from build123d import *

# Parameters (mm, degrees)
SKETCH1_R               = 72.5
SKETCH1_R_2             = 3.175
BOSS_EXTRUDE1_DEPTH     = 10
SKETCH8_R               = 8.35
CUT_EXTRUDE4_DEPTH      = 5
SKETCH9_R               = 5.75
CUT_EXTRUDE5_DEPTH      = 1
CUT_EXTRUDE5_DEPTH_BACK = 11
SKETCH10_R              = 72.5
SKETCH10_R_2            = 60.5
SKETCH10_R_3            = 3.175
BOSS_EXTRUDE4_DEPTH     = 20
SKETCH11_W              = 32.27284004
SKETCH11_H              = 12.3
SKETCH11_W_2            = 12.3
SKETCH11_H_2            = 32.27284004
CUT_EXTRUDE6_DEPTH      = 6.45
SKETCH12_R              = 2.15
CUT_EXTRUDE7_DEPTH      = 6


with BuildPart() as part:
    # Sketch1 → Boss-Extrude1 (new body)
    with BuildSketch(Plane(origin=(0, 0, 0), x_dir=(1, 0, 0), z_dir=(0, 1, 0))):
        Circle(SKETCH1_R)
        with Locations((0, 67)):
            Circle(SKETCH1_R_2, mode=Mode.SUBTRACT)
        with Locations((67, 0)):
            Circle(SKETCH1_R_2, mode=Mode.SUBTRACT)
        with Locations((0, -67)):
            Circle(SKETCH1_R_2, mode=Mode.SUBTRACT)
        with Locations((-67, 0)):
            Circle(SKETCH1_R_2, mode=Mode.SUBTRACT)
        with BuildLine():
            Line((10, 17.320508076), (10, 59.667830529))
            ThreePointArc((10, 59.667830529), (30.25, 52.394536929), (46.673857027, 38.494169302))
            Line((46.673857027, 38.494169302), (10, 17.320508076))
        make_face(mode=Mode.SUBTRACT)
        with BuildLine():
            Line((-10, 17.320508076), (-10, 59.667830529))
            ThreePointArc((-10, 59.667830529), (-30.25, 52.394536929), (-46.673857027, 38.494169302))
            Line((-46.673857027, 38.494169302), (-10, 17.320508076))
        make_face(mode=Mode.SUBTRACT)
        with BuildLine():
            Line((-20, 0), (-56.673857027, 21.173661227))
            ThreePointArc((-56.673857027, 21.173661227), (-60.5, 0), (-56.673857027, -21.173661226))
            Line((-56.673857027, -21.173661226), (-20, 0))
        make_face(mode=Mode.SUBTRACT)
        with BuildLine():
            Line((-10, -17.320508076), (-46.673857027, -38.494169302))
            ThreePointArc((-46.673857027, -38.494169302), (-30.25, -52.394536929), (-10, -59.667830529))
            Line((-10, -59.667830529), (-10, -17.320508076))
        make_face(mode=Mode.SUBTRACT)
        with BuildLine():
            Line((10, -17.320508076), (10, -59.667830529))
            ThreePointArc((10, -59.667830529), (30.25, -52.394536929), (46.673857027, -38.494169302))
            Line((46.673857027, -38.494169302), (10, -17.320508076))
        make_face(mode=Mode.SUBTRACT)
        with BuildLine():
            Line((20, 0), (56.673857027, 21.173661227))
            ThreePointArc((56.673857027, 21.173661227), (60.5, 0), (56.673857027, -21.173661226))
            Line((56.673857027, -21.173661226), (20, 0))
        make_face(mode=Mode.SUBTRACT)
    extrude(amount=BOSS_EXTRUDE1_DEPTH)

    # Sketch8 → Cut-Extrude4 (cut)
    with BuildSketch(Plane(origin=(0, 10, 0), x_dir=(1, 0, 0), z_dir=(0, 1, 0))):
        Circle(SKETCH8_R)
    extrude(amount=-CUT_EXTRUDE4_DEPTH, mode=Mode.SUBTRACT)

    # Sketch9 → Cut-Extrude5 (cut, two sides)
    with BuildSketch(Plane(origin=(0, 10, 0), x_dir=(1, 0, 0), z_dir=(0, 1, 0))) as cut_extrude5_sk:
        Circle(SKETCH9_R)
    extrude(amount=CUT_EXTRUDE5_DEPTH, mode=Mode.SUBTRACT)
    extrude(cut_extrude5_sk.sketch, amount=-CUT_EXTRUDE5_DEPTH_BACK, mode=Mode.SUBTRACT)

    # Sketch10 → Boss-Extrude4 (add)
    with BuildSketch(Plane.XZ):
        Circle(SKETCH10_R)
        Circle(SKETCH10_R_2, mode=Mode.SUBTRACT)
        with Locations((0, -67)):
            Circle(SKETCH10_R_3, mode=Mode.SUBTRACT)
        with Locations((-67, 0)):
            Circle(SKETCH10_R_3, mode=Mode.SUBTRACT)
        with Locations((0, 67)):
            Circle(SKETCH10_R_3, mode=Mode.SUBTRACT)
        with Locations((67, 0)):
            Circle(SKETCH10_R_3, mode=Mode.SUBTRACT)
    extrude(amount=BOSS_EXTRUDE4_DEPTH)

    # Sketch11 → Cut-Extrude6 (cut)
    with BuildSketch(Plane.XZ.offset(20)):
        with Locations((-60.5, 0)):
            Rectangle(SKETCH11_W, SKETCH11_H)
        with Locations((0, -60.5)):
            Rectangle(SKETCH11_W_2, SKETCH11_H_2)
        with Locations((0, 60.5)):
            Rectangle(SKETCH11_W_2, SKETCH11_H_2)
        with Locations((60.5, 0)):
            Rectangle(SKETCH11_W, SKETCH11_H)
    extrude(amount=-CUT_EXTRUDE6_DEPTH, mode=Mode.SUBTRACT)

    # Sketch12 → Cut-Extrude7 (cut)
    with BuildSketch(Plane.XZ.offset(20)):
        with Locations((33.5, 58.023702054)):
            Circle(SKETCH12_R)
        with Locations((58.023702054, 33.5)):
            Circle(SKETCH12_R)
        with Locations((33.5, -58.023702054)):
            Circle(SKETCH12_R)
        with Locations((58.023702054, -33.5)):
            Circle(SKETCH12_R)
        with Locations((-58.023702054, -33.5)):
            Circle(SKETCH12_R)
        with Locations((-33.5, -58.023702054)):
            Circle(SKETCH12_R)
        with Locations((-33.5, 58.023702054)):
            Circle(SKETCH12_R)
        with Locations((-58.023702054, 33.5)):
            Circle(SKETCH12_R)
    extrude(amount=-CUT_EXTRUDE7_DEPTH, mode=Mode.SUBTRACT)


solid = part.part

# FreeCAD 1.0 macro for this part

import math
import FreeCAD as App
import Part
import Sketcher
Q = App.Units.Quantity


def add_polygon(sketch, points):
    """Adds a closed chain of lines whose ends are joined by coincident constraints."""
    first, n = sketch.GeometryCount, len(points)
    for a, b in zip(points, points[1:] + points[:1]):
        sketch.addGeometry(Part.LineSegment(App.Vector(*a, 0), App.Vector(*b, 0)), False)
    for i in range(n):
        sketch.addConstraint(Sketcher.Constraint("Coincident", first + i, 2, first + (i + 1) % n, 1))

doc = App.newDocument("Part")
body = doc.addObject("PartDesign::Body", "Body")

# Sketch on XZ plane
sketch1 = doc.addObject("Sketcher::SketchObject", "Sketch")
body.addObject(sketch1)
sketch1.AttachmentSupport = (doc.XZ_Plane, [""])
sketch1.MapMode = "FlatFace"
sketch1.addGeometry([
    Part.Circle(App.Vector(0, 0, 0), App.Vector(0, 0, 1), 72.5),  # 0
    Part.LineSegment(App.Vector(-46.7, 38.5, 0), App.Vector(-10, 17.3, 0)),  # 1
    Part.LineSegment(App.Vector(-10, 17.3, 0), App.Vector(-10, 59.7, 0)),  # 2
    Part.ArcOfCircle(Part.Circle(App.Vector(0, 0, 0), App.Vector(0, 0, 1), 60.5), math.radians(100), math.radians(140)),  # 3
    Part.Circle(App.Vector(0, 67, 0), App.Vector(0, 0, 1), 3.2),  # 4
    Part.LineSegment(App.Vector(10, 59.7, 0), App.Vector(10, 17.3, 0)),  # 5
    Part.LineSegment(App.Vector(10, 17.3, 0), App.Vector(46.7, 38.5, 0)),  # 6
    Part.ArcOfCircle(Part.Circle(App.Vector(0, 0, 0), App.Vector(0, 0, 1), 60.5), math.radians(40), math.radians(80)),  # 7
    Part.Circle(App.Vector(-67, 0, 0), App.Vector(0, 0, 1), 3.2),  # 8
    Part.LineSegment(App.Vector(-56.7, -21.2, 0), App.Vector(-20, 0, 0)),  # 9
    Part.LineSegment(App.Vector(-20, 0, 0), App.Vector(-56.7, 21.2, 0)),  # 10
    Part.ArcOfCircle(Part.Circle(App.Vector(0, 0, 0), App.Vector(0, 0, 1), 60.5), math.radians(160), math.radians(200)),  # 11
    Part.LineSegment(App.Vector(-10, -59.7, 0), App.Vector(-10, -17.3, 0)),  # 12
    Part.LineSegment(App.Vector(-10, -17.3, 0), App.Vector(-46.7, -38.5, 0)),  # 13
    Part.ArcOfCircle(Part.Circle(App.Vector(0, 0, 0), App.Vector(0, 0, 1), 60.5), math.radians(-140), math.radians(-100)),  # 14
    Part.LineSegment(App.Vector(56.7, 21.2, 0), App.Vector(20, 0, 0)),  # 15
    Part.LineSegment(App.Vector(20, 0, 0), App.Vector(56.7, -21.2, 0)),  # 16
    Part.ArcOfCircle(Part.Circle(App.Vector(0, 0, 0), App.Vector(0, 0, 1), 60.5), math.radians(-20), math.radians(20)),  # 17
    Part.Circle(App.Vector(67, 0, 0), App.Vector(0, 0, 1), 3.2),  # 18
    Part.LineSegment(App.Vector(46.7, -38.5, 0), App.Vector(10, -17.3, 0)),  # 19
    Part.LineSegment(App.Vector(10, -17.3, 0), App.Vector(10, -59.7, 0)),  # 20
    Part.ArcOfCircle(Part.Circle(App.Vector(0, 0, 0), App.Vector(0, 0, 1), 60.5), math.radians(-80), math.radians(-40)),  # 21
    Part.Circle(App.Vector(0, -67, 0), App.Vector(0, 0, 1), 3.2),  # 22
], False)
sketch1.addConstraint([
    Sketcher.Constraint("Coincident", 1, 2, 2, 1),
    Sketcher.Constraint("Coincident", 2, 2, 3, 1),
    Sketcher.Constraint("Coincident", 3, 2, 1, 1),
    Sketcher.Constraint("Coincident", 5, 2, 6, 1),
    Sketcher.Constraint("Coincident", 6, 2, 7, 1),
    Sketcher.Constraint("Coincident", 7, 2, 5, 1),
    Sketcher.Constraint("Coincident", 9, 2, 10, 1),
    Sketcher.Constraint("Coincident", 10, 2, 11, 1),
    Sketcher.Constraint("Coincident", 11, 2, 9, 1),
    Sketcher.Constraint("Coincident", 12, 2, 13, 1),
    Sketcher.Constraint("Coincident", 13, 2, 14, 1),
    Sketcher.Constraint("Coincident", 14, 2, 12, 1),
    Sketcher.Constraint("Coincident", 15, 2, 16, 1),
    Sketcher.Constraint("Coincident", 16, 2, 17, 1),
    Sketcher.Constraint("Coincident", 17, 2, 15, 1),
    Sketcher.Constraint("Coincident", 19, 2, 20, 1),
    Sketcher.Constraint("Coincident", 20, 2, 21, 1),
    Sketcher.Constraint("Coincident", 21, 2, 19, 1),
    Sketcher.Constraint("Vertical", 2),
    Sketcher.Constraint("Vertical", 5),
    Sketcher.Constraint("Vertical", 12),
    Sketcher.Constraint("Vertical", 20),
    Sketcher.Constraint("Coincident", 0, 3, -1, 1),
    Sketcher.Constraint("Coincident", 3, 3, -1, 1),
    Sketcher.Constraint("Coincident", 7, 3, -1, 1),
    Sketcher.Constraint("Coincident", 11, 3, -1, 1),
    Sketcher.Constraint("Coincident", 14, 3, -1, 1),
    Sketcher.Constraint("Coincident", 17, 3, -1, 1),
    Sketcher.Constraint("Coincident", 21, 3, -1, 1),
    Sketcher.Constraint("Equal", 3, 7),
    Sketcher.Constraint("Equal", 4, 8),
    Sketcher.Constraint("Equal", 7, 11),
    Sketcher.Constraint("Equal", 11, 14),
    Sketcher.Constraint("Equal", 14, 17),
    Sketcher.Constraint("Equal", 8, 18),
    Sketcher.Constraint("Equal", 17, 21),
    Sketcher.Constraint("Equal", 18, 22),
    Sketcher.Constraint("Symmetric", 8, 3, 18, 3, -1, 1),
    Sketcher.Constraint("Symmetric", 4, 3, 22, 3, -1, 1),
    Sketcher.Constraint("Symmetric", 5, 2, 12, 2, -1, 1),
    Sketcher.Constraint("Symmetric", 9, 2, 15, 2, -1, 1),
    Sketcher.Constraint("Symmetric", 1, 2, 19, 2, -1, 1),
    Sketcher.Constraint("Symmetric", 1, 2, 5, 2, -2),
    Sketcher.Constraint("PointOnObject", 4, 3, -2),
    Sketcher.Constraint("PointOnObject", 8, 3, -1),
    Sketcher.Constraint("PointOnObject", 9, 2, -1),
    Sketcher.Constraint("Parallel", 6, 9),
    Sketcher.Constraint("Parallel", 1, 10),
    Sketcher.Constraint("Parallel", 9, 13),
    Sketcher.Constraint("Parallel", 13, 15),
    Sketcher.Constraint("Parallel", 10, 16),
    Sketcher.Constraint("Parallel", 16, 19),
    Sketcher.Constraint("Horizontal", 3, 2, 6, 2),
    Sketcher.Constraint("Equal", 6, 9),
    Sketcher.Constraint("Diameter", 0, 145.0),
    Sketcher.Constraint("Radius", 3, 60.5),
    Sketcher.Constraint("Diameter", 4, 6.35),
    Sketcher.Constraint("Angle", 1, Q("-30 deg")),
    Sketcher.Constraint("DistanceY", -1, 1, 4, 3, 67.0),
    Sketcher.Constraint("DistanceX", 8, 3, -1, 1, 67.0),
    Sketcher.Constraint("DistanceX", 1, 2, -1, 1, 10.0),
    Sketcher.Constraint("DistanceX", 9, 2, -1, 1, 20.0),
])
pad1 = doc.addObject("PartDesign::Pad", "Pad")
body.addObject(pad1)
pad1.Profile = sketch1
pad1.Length = 10
pad1.Reversed = True

# Sketch on XZ plane
sketch2 = doc.addObject("Sketcher::SketchObject", "Sketch001")
body.addObject(sketch2)
sketch2.AttachmentSupport = (doc.XZ_Plane, [""])
sketch2.MapMode = "FlatFace"
sketch2.AttachmentOffset = App.Placement(App.Vector(0, 0, -10), App.Rotation())
sketch2.addGeometry(Part.Circle(App.Vector(0, 0, 0), App.Vector(0, 0, 1), 8), False)
sketch2.addConstraint([
    Sketcher.Constraint("Coincident", 0, 3, -1, 1),
    Sketcher.Constraint("Diameter", 0, 16.7),
])
pocket1 = doc.addObject("PartDesign::Pocket", "Pocket")
body.addObject(pocket1)
pocket1.Profile = sketch2
pocket1.Length = 5
pocket1.Reversed = True

# Sketch on XZ plane
sketch3 = doc.addObject("Sketcher::SketchObject", "Sketch002")
body.addObject(sketch3)
sketch3.AttachmentSupport = (doc.XZ_Plane, [""])
sketch3.MapMode = "FlatFace"
sketch3.AttachmentOffset = App.Placement(App.Vector(0, 0, -10), App.Rotation())
sketch3.addGeometry(Part.Circle(App.Vector(0, 0, 0), App.Vector(0, 0, 1), 6), False)
sketch3.addConstraint([
    Sketcher.Constraint("Coincident", 0, 3, -1, 1),
    Sketcher.Constraint("Diameter", 0, 11.5),
])
pocket2 = doc.addObject("PartDesign::Pocket", "Pocket001")
body.addObject(pocket2)
pocket2.Profile = sketch3
pocket2.Type = "ThroughAll"
pocket2.Midplane = True

# Sketch on XZ plane
sketch4 = doc.addObject("Sketcher::SketchObject", "Sketch003")
body.addObject(sketch4)
sketch4.AttachmentSupport = (doc.XZ_Plane, [""])
sketch4.MapMode = "FlatFace"
sketch4.addGeometry([
    Part.Circle(App.Vector(0, 0, 0), App.Vector(0, 0, 1), 72.5),  # 0
    Part.Circle(App.Vector(0, -67, 0), App.Vector(0, 0, 1), 3.2),  # 1
    Part.Circle(App.Vector(0, 0, 0), App.Vector(0, 0, 1), 60.5),  # 2
    Part.Circle(App.Vector(-67, 0, 0), App.Vector(0, 0, 1), 3.2),  # 3
    Part.Circle(App.Vector(67, 0, 0), App.Vector(0, 0, 1), 3.2),  # 4
    Part.Circle(App.Vector(0, 67, 0), App.Vector(0, 0, 1), 3.2),  # 5
], False)
sketch4.addConstraint([
    Sketcher.Constraint("Coincident", 0, 3, -1, 1),
    Sketcher.Constraint("Coincident", 2, 3, -1, 1),
    Sketcher.Constraint("Equal", 1, 3),
    Sketcher.Constraint("Equal", 3, 4),
    Sketcher.Constraint("Equal", 4, 5),
    Sketcher.Constraint("Symmetric", 3, 3, 4, 3, -1, 1),
    Sketcher.Constraint("Symmetric", 1, 3, 5, 3, -1, 1),
    Sketcher.Constraint("PointOnObject", 1, 3, -2),
    Sketcher.Constraint("PointOnObject", 3, 3, -1),
    Sketcher.Constraint("Diameter", 0, 145.0),
    Sketcher.Constraint("Diameter", 2, 121.0),
    Sketcher.Constraint("Diameter", 1, 6.35),
    Sketcher.Constraint("DistanceY", 1, 3, -1, 1, 67.0),
    Sketcher.Constraint("DistanceX", 3, 3, -1, 1, 67.0),
])
pad2 = doc.addObject("PartDesign::Pad", "Pad001")
body.addObject(pad2)
pad2.Profile = sketch4
pad2.Length = 20

# Sketch on XZ plane
sketch5 = doc.addObject("Sketcher::SketchObject", "Sketch004")
body.addObject(sketch5)
sketch5.AttachmentSupport = (doc.XZ_Plane, [""])
sketch5.MapMode = "FlatFace"
sketch5.AttachmentOffset = App.Placement(App.Vector(0, 0, 20), App.Rotation())
add_polygon(sketch5, [(-77, 6), (-77, -6), (-44, -6), (-44, 6)])  # lines 0-3
add_polygon(sketch5, [(-6, -44), (-6, -77), (6, -77), (6, -44)])  # lines 4-7
add_polygon(sketch5, [(-6, 77), (-6, 44), (6, 44), (6, 77)])  # lines 8-11
add_polygon(sketch5, [(44, 6), (44, -6), (77, -6), (77, 6)])  # lines 12-15
sketch5.addConstraint([
    Sketcher.Constraint("Vertical", 0),
    Sketcher.Constraint("Horizontal", 1),
    Sketcher.Constraint("Vertical", 2),
    Sketcher.Constraint("Horizontal", 3),
    Sketcher.Constraint("Vertical", 4),
    Sketcher.Constraint("Horizontal", 5),
    Sketcher.Constraint("Vertical", 6),
    Sketcher.Constraint("Horizontal", 7),
    Sketcher.Constraint("Vertical", 8),
    Sketcher.Constraint("Horizontal", 9),
    Sketcher.Constraint("Vertical", 10),
    Sketcher.Constraint("Horizontal", 11),
    Sketcher.Constraint("Vertical", 12),
    Sketcher.Constraint("Horizontal", 13),
    Sketcher.Constraint("Vertical", 14),
    Sketcher.Constraint("Horizontal", 15),
    Sketcher.Constraint("Symmetric", 6, 2, 8, 2, -1, 1),
    Sketcher.Constraint("Symmetric", 4, 2, 10, 2, -1, 1),
    Sketcher.Constraint("Symmetric", 2, 2, 12, 2, -1, 1),
    Sketcher.Constraint("Symmetric", 0, 2, 14, 2, -1, 1),
    Sketcher.Constraint("Horizontal", 1, 2, 12, 2),
    Sketcher.Constraint("Vertical", 7, 2, 8, 2),
    Sketcher.Constraint("Equal", 11, 0),
    Sketcher.Constraint("Equal", 15, 4),
    Sketcher.Constraint("DistanceX", 5, 1, 5, 2, 12.3),
    Sketcher.Constraint("DistanceX", 1, 1, 1, 2, 32.27284),
    Sketcher.Constraint("DistanceX", 0, 2, -1, 1, 76.63642),
    Sketcher.Constraint("DistanceY", 4, 2, -1, 1, 76.63642),
])
pocket3 = doc.addObject("PartDesign::Pocket", "Pocket002")
body.addObject(pocket3)
pocket3.Profile = sketch5
pocket3.Length = 6.45

# Sketch on XZ plane
sketch6 = doc.addObject("Sketcher::SketchObject", "Sketch005")
body.addObject(sketch6)
sketch6.AttachmentSupport = (doc.XZ_Plane, [""])
sketch6.MapMode = "FlatFace"
sketch6.AttachmentOffset = App.Placement(App.Vector(0, 0, 20), App.Rotation())
sketch6.addGeometry([
    Part.Circle(App.Vector(33.5, 58, 0), App.Vector(0, 0, 1), 2.1),  # 0
    Part.Circle(App.Vector(58, 33.5, 0), App.Vector(0, 0, 1), 2.1),  # 1
    Part.Circle(App.Vector(33.5, -58, 0), App.Vector(0, 0, 1), 2.1),  # 2
    Part.Circle(App.Vector(58, -33.5, 0), App.Vector(0, 0, 1), 2.1),  # 3
    Part.Circle(App.Vector(-58, -33.5, 0), App.Vector(0, 0, 1), 2.1),  # 4
    Part.Circle(App.Vector(-33.5, -58, 0), App.Vector(0, 0, 1), 2.1),  # 5
    Part.Circle(App.Vector(-33.5, 58, 0), App.Vector(0, 0, 1), 2.1),  # 6
    Part.Circle(App.Vector(-58, 33.5, 0), App.Vector(0, 0, 1), 2.1),  # 7
], False)
sketch6.addConstraint([
    Sketcher.Constraint("Equal", 0, 1),
    Sketcher.Constraint("Equal", 1, 2),
    Sketcher.Constraint("Equal", 2, 3),
    Sketcher.Constraint("Equal", 3, 4),
    Sketcher.Constraint("Equal", 4, 5),
    Sketcher.Constraint("Equal", 5, 6),
    Sketcher.Constraint("Equal", 6, 7),
    Sketcher.Constraint("Symmetric", 1, 3, 4, 3, -1, 1),
    Sketcher.Constraint("Symmetric", 0, 3, 5, 3, -1, 1),
    Sketcher.Constraint("Symmetric", 2, 3, 6, 3, -1, 1),
    Sketcher.Constraint("Symmetric", 3, 3, 7, 3, -1, 1),
    Sketcher.Constraint("Symmetric", 3, 3, 4, 3, -2),
    Sketcher.Constraint("Symmetric", 2, 3, 5, 3, -2),
    Sketcher.Constraint("Diameter", 0, 4.3),
    Sketcher.Constraint("DistanceY", 3, 3, 1, 3, 67.0),
    Sketcher.Constraint("DistanceX", 5, 3, 2, 3, 67.0),
    Sketcher.Constraint("DistanceY", -1, 1, 0, 3, 58.023702),
    Sketcher.Constraint("DistanceX", -1, 1, 1, 3, 58.023702),
])
pocket4 = doc.addObject("PartDesign::Pocket", "Pocket003")
body.addObject(pocket4)
pocket4.Profile = sketch6
pocket4.Length = 6

doc.recompute()
